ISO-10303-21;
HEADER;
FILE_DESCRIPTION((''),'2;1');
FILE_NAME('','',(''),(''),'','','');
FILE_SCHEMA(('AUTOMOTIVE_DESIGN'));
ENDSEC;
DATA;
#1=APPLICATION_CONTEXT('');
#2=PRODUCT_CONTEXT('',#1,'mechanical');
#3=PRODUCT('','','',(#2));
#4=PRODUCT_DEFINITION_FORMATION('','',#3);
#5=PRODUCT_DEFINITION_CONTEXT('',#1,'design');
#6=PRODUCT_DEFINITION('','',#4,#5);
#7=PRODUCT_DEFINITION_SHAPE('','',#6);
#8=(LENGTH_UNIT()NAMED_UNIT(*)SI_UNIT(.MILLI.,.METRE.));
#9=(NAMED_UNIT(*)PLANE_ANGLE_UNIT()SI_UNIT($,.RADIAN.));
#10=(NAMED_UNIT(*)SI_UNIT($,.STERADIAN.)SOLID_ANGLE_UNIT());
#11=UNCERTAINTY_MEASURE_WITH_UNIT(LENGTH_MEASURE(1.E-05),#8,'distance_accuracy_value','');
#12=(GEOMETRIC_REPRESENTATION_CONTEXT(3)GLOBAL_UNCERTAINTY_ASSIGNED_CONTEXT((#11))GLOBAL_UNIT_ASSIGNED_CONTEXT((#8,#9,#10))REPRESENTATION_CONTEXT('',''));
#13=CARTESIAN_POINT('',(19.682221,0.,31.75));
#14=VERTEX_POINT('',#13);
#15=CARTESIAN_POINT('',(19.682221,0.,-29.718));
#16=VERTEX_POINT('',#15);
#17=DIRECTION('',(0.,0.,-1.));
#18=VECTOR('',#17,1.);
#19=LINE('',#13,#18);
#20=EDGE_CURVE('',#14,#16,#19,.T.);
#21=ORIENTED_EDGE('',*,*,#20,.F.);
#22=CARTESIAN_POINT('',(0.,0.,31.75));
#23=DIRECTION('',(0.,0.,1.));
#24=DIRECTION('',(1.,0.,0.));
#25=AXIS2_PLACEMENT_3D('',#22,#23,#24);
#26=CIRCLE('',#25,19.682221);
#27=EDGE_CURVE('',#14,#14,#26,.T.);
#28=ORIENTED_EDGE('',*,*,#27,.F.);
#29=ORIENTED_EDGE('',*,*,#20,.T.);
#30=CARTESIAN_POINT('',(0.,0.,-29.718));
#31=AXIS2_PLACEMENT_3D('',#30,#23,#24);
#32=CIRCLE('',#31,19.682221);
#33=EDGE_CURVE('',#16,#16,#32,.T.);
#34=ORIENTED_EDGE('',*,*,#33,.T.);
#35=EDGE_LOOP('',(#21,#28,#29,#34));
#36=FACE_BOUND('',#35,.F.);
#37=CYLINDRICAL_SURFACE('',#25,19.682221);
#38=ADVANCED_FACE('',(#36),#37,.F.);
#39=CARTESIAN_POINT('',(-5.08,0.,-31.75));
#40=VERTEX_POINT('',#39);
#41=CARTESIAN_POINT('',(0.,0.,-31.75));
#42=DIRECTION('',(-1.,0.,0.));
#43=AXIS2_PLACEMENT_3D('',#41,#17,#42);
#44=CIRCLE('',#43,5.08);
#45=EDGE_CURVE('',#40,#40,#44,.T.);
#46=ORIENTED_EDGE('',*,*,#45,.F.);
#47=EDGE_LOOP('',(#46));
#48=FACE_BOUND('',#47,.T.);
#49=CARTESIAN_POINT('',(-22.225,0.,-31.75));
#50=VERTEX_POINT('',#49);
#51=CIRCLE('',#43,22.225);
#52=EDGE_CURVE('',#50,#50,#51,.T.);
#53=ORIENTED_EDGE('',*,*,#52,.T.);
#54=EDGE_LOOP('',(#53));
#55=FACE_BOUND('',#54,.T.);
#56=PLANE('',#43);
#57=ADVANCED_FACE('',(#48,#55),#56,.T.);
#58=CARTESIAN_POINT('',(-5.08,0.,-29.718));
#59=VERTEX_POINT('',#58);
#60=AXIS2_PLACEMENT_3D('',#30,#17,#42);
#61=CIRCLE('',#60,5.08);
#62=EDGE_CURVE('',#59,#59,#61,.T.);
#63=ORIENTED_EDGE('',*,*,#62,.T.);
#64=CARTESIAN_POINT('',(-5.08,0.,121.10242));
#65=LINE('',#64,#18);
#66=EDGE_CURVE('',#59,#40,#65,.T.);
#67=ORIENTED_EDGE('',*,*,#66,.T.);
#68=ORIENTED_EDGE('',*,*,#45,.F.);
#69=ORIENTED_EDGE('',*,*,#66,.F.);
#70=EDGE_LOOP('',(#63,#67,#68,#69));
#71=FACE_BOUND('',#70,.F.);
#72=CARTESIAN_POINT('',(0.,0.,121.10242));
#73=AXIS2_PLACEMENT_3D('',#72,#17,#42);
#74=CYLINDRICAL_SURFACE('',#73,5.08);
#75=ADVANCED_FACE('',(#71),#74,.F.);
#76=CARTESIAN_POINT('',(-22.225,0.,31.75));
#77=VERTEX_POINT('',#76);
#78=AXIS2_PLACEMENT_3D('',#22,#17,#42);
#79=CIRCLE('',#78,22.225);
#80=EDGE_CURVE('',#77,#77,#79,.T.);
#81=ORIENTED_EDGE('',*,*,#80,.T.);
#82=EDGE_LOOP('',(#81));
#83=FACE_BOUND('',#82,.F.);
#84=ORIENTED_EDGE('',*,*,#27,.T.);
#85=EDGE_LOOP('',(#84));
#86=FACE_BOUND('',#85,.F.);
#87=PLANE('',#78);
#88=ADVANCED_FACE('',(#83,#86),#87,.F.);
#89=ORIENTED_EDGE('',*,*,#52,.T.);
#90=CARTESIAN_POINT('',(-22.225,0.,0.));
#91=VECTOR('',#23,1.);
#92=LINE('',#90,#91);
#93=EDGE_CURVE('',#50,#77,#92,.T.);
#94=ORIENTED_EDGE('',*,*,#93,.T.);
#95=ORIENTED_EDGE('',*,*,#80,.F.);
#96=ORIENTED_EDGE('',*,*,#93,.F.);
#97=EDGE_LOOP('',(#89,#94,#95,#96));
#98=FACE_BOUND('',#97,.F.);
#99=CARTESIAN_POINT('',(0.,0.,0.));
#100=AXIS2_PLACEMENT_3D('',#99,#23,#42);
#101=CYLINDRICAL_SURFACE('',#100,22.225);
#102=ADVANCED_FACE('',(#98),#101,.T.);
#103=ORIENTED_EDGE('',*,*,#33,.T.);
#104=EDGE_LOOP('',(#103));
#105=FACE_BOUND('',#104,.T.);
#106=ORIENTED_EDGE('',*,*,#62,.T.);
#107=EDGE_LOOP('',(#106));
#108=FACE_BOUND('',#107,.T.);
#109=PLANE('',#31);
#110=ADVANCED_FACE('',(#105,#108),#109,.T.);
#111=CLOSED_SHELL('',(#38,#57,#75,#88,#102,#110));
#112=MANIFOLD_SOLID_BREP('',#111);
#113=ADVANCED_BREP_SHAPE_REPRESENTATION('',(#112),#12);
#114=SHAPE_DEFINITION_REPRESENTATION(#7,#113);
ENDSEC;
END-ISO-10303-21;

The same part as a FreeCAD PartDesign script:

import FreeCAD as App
import Part
import Sketcher

V = App.Vector
Q = App.Units.Quantity

doc = App.newDocument("Part")
body = doc.addObject("PartDesign::Body", "Body")

# Sketch on XZ plane
sketch1 = body.newObject("Sketcher::SketchObject", "Sketch")
sketch1.AttachmentSupport = (doc.getObject("XZ_Plane"), [""])
sketch1.MapMode = "FlatFace"
sketch1.addGeometry(Part.LineSegment(V(-22.225, 31.75, 0), V(-22.225, -31.75, 0)), False)
sketch1.addGeometry(Part.LineSegment(V(-22.225, -31.75, 0), V(0, -31.75, 0)), False)
sketch1.addGeometry(Part.LineSegment(V(0, -31.75, 0), V(0, 31.75, 0)), False)
sketch1.addGeometry(Part.LineSegment(V(0, 31.75, 0), V(-22.225, 31.75, 0)), False)
sketch1.addConstraint(Sketcher.Constraint("Coincident", 0, 2, 1, 1))
sketch1.addConstraint(Sketcher.Constraint("Coincident", 1, 2, 2, 1))
sketch1.addConstraint(Sketcher.Constraint("Coincident", 2, 2, 3, 1))
sketch1.addConstraint(Sketcher.Constraint("Coincident", 3, 2, 0, 1))
sketch1.addConstraint(Sketcher.Constraint("Vertical", 0))
sketch1.addConstraint(Sketcher.Constraint("Horizontal", 1))
sketch1.addConstraint(Sketcher.Constraint("Vertical", 2))
sketch1.addConstraint(Sketcher.Constraint("Horizontal", 3))
sketch1.addConstraint(Sketcher.Constraint("Symmetric", 1, 2, 2, 2, -1, 1))
sketch1.addConstraint(Sketcher.Constraint("DistanceY", 0, 2, 0, 1, Q("2.5 in")))
sketch1.addConstraint(Sketcher.Constraint("DistanceX", 1, 1, 1, 2, Q("0.875 in")))
revolution = body.newObject("PartDesign::Revolution", "Revolution")
revolution.Profile = sketch1
revolution.ReferenceAxis = (sketch1, ["V_Axis"])
revolution.Angle = 360

# Sketch on XY plane
sketch2 = body.newObject("Sketcher::SketchObject", "Sketch001")
sketch2.AttachmentSupport = (doc.getObject("XY_Plane"), [""])
sketch2.MapMode = "FlatFace"
sketch2.AttachmentOffset = App.Placement(V(0, 0, 1.25 * 25.4), App.Rotation())
sketch2.addGeometry(Part.Circle(V(0, 0, 0), V(0, 0, 1), 5.08), False)
sketch2.addConstraint(Sketcher.Constraint("Coincident", 0, 3, -1, 1))
sketch2.addConstraint(Sketcher.Constraint("Diameter", 0, Q("0.4 in")))
doc.recompute()
hole = body.newObject("PartDesign::Hole", "Hole")
hole.Profile = sketch2
hole.ThreadType = "None"
hole.Diameter = Q("0.4 in")
hole.DepthType = "ThroughAll"

# Sketch on XY plane
sketch3 = body.newObject("Sketcher::SketchObject", "Sketch002")
sketch3.AttachmentSupport = (doc.getObject("XY_Plane"), [""])
sketch3.MapMode = "FlatFace"
sketch3.AttachmentOffset = App.Placement(V(0, 0, 1.25 * 25.4), App.Rotation())
sketch3.addGeometry(Part.Circle(V(0, 0, 0), V(0, 0, 1), 19.682221), False)
sketch3.addConstraint(Sketcher.Constraint("Coincident", 0, 3, -1, 1))
sketch3.addConstraint(Sketcher.Constraint("Diameter", 0, 39.364442))
pocket1 = body.newObject("PartDesign::Pocket", "Pocket")
pocket1.Profile = sketch3
pocket1.Length = Q("2.42 in")

doc.recompute()
